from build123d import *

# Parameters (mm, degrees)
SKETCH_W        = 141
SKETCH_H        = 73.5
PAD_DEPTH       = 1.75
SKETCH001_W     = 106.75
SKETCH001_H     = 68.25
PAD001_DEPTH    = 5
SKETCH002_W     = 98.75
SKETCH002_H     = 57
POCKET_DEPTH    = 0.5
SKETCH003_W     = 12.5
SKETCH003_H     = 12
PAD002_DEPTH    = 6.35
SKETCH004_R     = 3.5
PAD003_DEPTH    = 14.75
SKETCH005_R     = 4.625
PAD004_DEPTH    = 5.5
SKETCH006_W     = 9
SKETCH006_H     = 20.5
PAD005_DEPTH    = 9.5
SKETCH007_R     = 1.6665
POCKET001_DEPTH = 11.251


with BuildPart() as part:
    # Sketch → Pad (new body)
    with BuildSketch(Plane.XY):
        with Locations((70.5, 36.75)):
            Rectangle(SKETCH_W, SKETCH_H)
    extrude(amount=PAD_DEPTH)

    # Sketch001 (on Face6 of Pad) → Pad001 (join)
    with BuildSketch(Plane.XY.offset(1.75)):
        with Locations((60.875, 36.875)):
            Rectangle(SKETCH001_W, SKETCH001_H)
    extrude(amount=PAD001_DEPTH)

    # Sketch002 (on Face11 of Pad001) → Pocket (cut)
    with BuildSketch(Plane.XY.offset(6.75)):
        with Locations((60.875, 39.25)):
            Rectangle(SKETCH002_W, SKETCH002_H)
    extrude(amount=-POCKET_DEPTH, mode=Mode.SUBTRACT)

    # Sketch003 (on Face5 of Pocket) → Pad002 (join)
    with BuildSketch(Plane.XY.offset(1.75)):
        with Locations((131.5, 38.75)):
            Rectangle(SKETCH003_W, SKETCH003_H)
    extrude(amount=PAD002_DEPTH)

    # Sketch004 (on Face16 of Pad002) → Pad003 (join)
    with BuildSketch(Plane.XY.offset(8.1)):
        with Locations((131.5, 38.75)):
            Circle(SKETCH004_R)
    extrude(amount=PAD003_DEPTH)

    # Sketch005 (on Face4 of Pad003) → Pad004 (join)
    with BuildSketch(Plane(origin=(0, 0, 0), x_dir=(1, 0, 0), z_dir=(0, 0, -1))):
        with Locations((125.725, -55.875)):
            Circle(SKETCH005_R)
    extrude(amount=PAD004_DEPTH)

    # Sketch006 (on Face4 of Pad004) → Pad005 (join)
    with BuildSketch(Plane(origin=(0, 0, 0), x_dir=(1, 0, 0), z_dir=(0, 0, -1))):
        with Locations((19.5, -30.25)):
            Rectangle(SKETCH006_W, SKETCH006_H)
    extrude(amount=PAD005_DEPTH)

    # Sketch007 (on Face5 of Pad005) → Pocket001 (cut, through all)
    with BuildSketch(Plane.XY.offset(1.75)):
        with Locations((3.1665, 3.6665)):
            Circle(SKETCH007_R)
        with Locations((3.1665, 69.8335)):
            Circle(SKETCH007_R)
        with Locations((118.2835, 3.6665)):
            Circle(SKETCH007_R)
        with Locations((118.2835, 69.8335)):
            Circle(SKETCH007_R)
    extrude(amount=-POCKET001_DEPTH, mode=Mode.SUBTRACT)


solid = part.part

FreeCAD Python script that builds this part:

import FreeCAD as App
import Part
import Sketcher
from FreeCAD import Vector
Q = App.Units.Quantity

doc = App.newDocument("Part")
params = doc.addObject("Spreadsheet::Sheet", "Params")
for row, (alias, value) in enumerate([
    ("sketch1_width", "141 mm"),
    ("sketch1_height", "73.5 mm"),
    ("pad1_length", "1.75 mm"),
    ("sketch2_width", "106.75 mm"),
    ("sketch2_height", "68.25 mm"),
    ("pad2_length", "5 mm"),
    ("sketch3_height", "57 mm"),
    ("sketch3_width", "98.75 mm"),
    ("pocket1_length", "0.5 mm"),
    ("sketch4_height", "12 mm"),
    ("sketch4_width", "12.5 mm"),
    ("pad3_length", "6.35 mm"),
    ("sketch5_diameter", "7 mm"),
    ("pad4_length", "14.75 mm"),
    ("sketch6_diameter", "9.25 mm"),
    ("pad5_length", "5.5 mm"),
    ("sketch7_width", "9 mm"),
    ("sketch7_height", "20.5 mm"),
    ("pad6_length", "9.5 mm"),
], start=1):
    params.set(f"A{row}", alias)
    params.set(f"B{row}", "=" + value)
    params.setAlias(f"B{row}", alias)

body = doc.addObject("PartDesign::Body", "Body")

# Sketch on XY plane
sketch1 = doc.addObject("Sketcher::SketchObject", "Sketch")
body.addObject(sketch1)
sketch1.AttachmentSupport = (doc.XY_Plane, [""])
sketch1.MapMode = "FlatFace"
sketch1.addGeometry(Part.LineSegment(Vector(0, 74, 0), Vector(0, 0, 0)), False)
sketch1.addGeometry(Part.LineSegment(Vector(0, 0, 0), Vector(141, 0, 0)), False)
sketch1.addGeometry(Part.LineSegment(Vector(141, 0, 0), Vector(141, 74, 0)), False)
sketch1.addGeometry(Part.LineSegment(Vector(141, 74, 0), Vector(0, 74, 0)), False)
sketch1.addConstraint(Sketcher.Constraint("Coincident", 0, 2, 1, 1))
sketch1.addConstraint(Sketcher.Constraint("Coincident", 1, 2, 2, 1))
sketch1.addConstraint(Sketcher.Constraint("Coincident", 2, 2, 3, 1))
sketch1.addConstraint(Sketcher.Constraint("Coincident", 3, 2, 0, 1))
sketch1.addConstraint(Sketcher.Constraint("Vertical", 0))
sketch1.addConstraint(Sketcher.Constraint("Horizontal", 1))
sketch1.addConstraint(Sketcher.Constraint("Vertical", 2))
sketch1.addConstraint(Sketcher.Constraint("Horizontal", 3))
sketch1.addConstraint(Sketcher.Constraint("Coincident", 0, 2, -1, 1))
sketch1.addConstraint(Sketcher.Constraint("DistanceX", 1, 1, 1, 2, Q("141 mm")))
sketch1.addConstraint(Sketcher.Constraint("DistanceY", 0, 2, 0, 1, Q("73.5 mm")))
sketch1.setExpression("Constraints[9]", "Params.sketch1_width")
sketch1.setExpression("Constraints[10]", "Params.sketch1_height")
pad1 = doc.addObject("PartDesign::Pad", "Pad")
body.addObject(pad1)
pad1.Profile = sketch1
pad1.setExpression("Length", "Params.pad1_length")

# Sketch on XY plane
sketch2 = doc.addObject("Sketcher::SketchObject", "Sketch001")
body.addObject(sketch2)
sketch2.AttachmentSupport = (doc.XY_Plane, [""])
sketch2.MapMode = "FlatFace"
sketch2.AttachmentOffset = App.Placement(Vector(0, 0, 1.75), App.Rotation())
sketch2.addGeometry(Part.LineSegment(Vector(8, 71, 0), Vector(8, 3, 0)), False)
sketch2.addGeometry(Part.LineSegment(Vector(8, 3, 0), Vector(114, 3, 0)), False)
sketch2.addGeometry(Part.LineSegment(Vector(114, 3, 0), Vector(114, 71, 0)), False)
sketch2.addGeometry(Part.LineSegment(Vector(114, 71, 0), Vector(8, 71, 0)), False)
sketch2.addConstraint(Sketcher.Constraint("Coincident", 0, 2, 1, 1))
sketch2.addConstraint(Sketcher.Constraint("Coincident", 1, 2, 2, 1))
sketch2.addConstraint(Sketcher.Constraint("Coincident", 2, 2, 3, 1))
sketch2.addConstraint(Sketcher.Constraint("Coincident", 3, 2, 0, 1))
sketch2.addConstraint(Sketcher.Constraint("Vertical", 0))
sketch2.addConstraint(Sketcher.Constraint("Horizontal", 1))
sketch2.addConstraint(Sketcher.Constraint("Vertical", 2))
sketch2.addConstraint(Sketcher.Constraint("Horizontal", 3))
sketch2.addConstraint(Sketcher.Constraint("DistanceY", -1, 1, 2, 2, Q("71 mm")))
sketch2.addConstraint(Sketcher.Constraint("DistanceX", 1, 1, 1, 2, Q("106.75 mm")))
sketch2.addConstraint(Sketcher.Constraint("DistanceY", 0, 2, 0, 1, Q("68.25 mm")))
sketch2.addConstraint(Sketcher.Constraint("DistanceX", -1, 1, 0, 2, Q("7.5 mm")))
sketch2.setExpression("Constraints[9]", "Params.sketch2_width")
sketch2.setExpression("Constraints[10]", "Params.sketch2_height")
pad2 = doc.addObject("PartDesign::Pad", "Pad001")
body.addObject(pad2)
pad2.Profile = sketch2
pad2.setExpression("Length", "Params.pad2_length")

# Sketch on XY plane
sketch3 = doc.addObject("Sketcher::SketchObject", "Sketch002")
body.addObject(sketch3)
sketch3.AttachmentSupport = (doc.XY_Plane, [""])
sketch3.MapMode = "FlatFace"
sketch3.AttachmentOffset = App.Placement(Vector(0, 0, 6.75), App.Rotation())
sketch3.addGeometry(Part.LineSegment(Vector(12, 68, 0), Vector(12, 11, 0)), False)
sketch3.addGeometry(Part.LineSegment(Vector(12, 11, 0), Vector(110, 11, 0)), False)
sketch3.addGeometry(Part.LineSegment(Vector(110, 11, 0), Vector(110, 68, 0)), False)
sketch3.addGeometry(Part.LineSegment(Vector(110, 68, 0), Vector(12, 68, 0)), False)
sketch3.addConstraint(Sketcher.Constraint("Coincident", 0, 2, 1, 1))
sketch3.addConstraint(Sketcher.Constraint("Coincident", 1, 2, 2, 1))
sketch3.addConstraint(Sketcher.Constraint("Coincident", 2, 2, 3, 1))
sketch3.addConstraint(Sketcher.Constraint("Coincident", 3, 2, 0, 1))
sketch3.addConstraint(Sketcher.Constraint("Vertical", 0))
sketch3.addConstraint(Sketcher.Constraint("Horizontal", 1))
sketch3.addConstraint(Sketcher.Constraint("Vertical", 2))
sketch3.addConstraint(Sketcher.Constraint("Horizontal", 3))
sketch3.addConstraint(Sketcher.Constraint("DistanceY", 0, 2, 0, 1, Q("57 mm")))
sketch3.addConstraint(Sketcher.Constraint("DistanceX", 1, 1, 1, 2, Q("98.75 mm")))
sketch3.addConstraint(Sketcher.Constraint("DistanceX", -1, 1, 0, 2, Q("11.5 mm")))
sketch3.addConstraint(Sketcher.Constraint("DistanceY", -1, 1, 0, 2, Q("10.75 mm")))
sketch3.setExpression("Constraints[8]", "Params.sketch3_height")
sketch3.setExpression("Constraints[9]", "Params.sketch3_width")
pocket1 = doc.addObject("PartDesign::Pocket", "Pocket")
body.addObject(pocket1)
pocket1.Profile = sketch3
pocket1.setExpression("Length", "Params.pocket1_length")

# Sketch on XY plane
sketch4 = doc.addObject("Sketcher::SketchObject", "Sketch003")
body.addObject(sketch4)
sketch4.AttachmentSupport = (doc.XY_Plane, [""])
sketch4.MapMode = "FlatFace"
sketch4.AttachmentOffset = App.Placement(Vector(0, 0, 1.75), App.Rotation())
sketch4.addGeometry(Part.LineSegment(Vector(125, 45, 0), Vector(125, 33, 0)), False)
sketch4.addGeometry(Part.LineSegment(Vector(125, 33, 0), Vector(138, 33, 0)), False)
sketch4.addGeometry(Part.LineSegment(Vector(138, 33, 0), Vector(138, 45, 0)), False)
sketch4.addGeometry(Part.LineSegment(Vector(138, 45, 0), Vector(125, 45, 0)), False)
sketch4.addConstraint(Sketcher.Constraint("Coincident", 0, 2, 1, 1))
sketch4.addConstraint(Sketcher.Constraint("Coincident", 1, 2, 2, 1))
sketch4.addConstraint(Sketcher.Constraint("Coincident", 2, 2, 3, 1))
sketch4.addConstraint(Sketcher.Constraint("Coincident", 3, 2, 0, 1))
sketch4.addConstraint(Sketcher.Constraint("Vertical", 0))
sketch4.addConstraint(Sketcher.Constraint("Horizontal", 1))
sketch4.addConstraint(Sketcher.Constraint("Vertical", 2))
sketch4.addConstraint(Sketcher.Constraint("Horizontal", 3))
sketch4.addConstraint(Sketcher.Constraint("DistanceY", 0, 2, 0, 1, Q("12 mm")))
sketch4.addConstraint(Sketcher.Constraint("DistanceX", 1, 1, 1, 2, Q("12.5 mm")))
sketch4.addConstraint(Sketcher.Constraint("DistanceX", -1, 1, 0, 2, Q("125.25 mm")))
sketch4.addConstraint(Sketcher.Constraint("DistanceY", -1, 1, 0, 2, Q("32.75 mm")))
sketch4.setExpression("Constraints[8]", "Params.sketch4_height")
sketch4.setExpression("Constraints[9]", "Params.sketch4_width")
pad3 = doc.addObject("PartDesign::Pad", "Pad002")
body.addObject(pad3)
pad3.Profile = sketch4
pad3.setExpression("Length", "Params.pad3_length")

# Sketch on XY plane
sketch5 = doc.addObject("Sketcher::SketchObject", "Sketch004")
body.addObject(sketch5)
sketch5.AttachmentSupport = (doc.XY_Plane, [""])
sketch5.MapMode = "FlatFace"
sketch5.AttachmentOffset = App.Placement(Vector(0, 0, 8.1), App.Rotation())
sketch5.addGeometry(Part.Circle(Vector(131.5, 38.8, 0), Vector(0, 0, 1), 3.5), False)
sketch5.addConstraint(Sketcher.Constraint("Diameter", 0, Q("7 mm")))
sketch5.addConstraint(Sketcher.Constraint("DistanceX", -1, 1, 0, 3, Q("131.5 mm")))
sketch5.addConstraint(Sketcher.Constraint("DistanceY", -1, 1, 0, 3, Q("38.75 mm")))
sketch5.setExpression("Constraints[0]", "Params.sketch5_diameter")
pad4 = doc.addObject("PartDesign::Pad", "Pad003")
body.addObject(pad4)
pad4.Profile = sketch5
pad4.setExpression("Length", "Params.pad4_length")

# Sketch on XY plane
sketch6 = doc.addObject("Sketcher::SketchObject", "Sketch005")
body.addObject(sketch6)
sketch6.AttachmentSupport = (doc.XY_Plane, [""])
sketch6.MapMode = "FlatFace"
sketch6.addGeometry(Part.Circle(Vector(125.7, 55.9, 0), Vector(0, 0, 1), 4.6), False)
sketch6.addConstraint(Sketcher.Constraint("Diameter", 0, Q("9.25 mm")))
sketch6.addConstraint(Sketcher.Constraint("DistanceX", -1, 1, 0, 3, Q("125.725 mm")))
sketch6.addConstraint(Sketcher.Constraint("DistanceY", -1, 1, 0, 3, Q("55.875 mm")))
sketch6.setExpression("Constraints[0]", "Params.sketch6_diameter")
pad5 = doc.addObject("PartDesign::Pad", "Pad004")
body.addObject(pad5)
pad5.Profile = sketch6
pad5.setExpression("Length", "Params.pad5_length")
pad5.Reversed = True

# Sketch on XY plane
sketch7 = doc.addObject("Sketcher::SketchObject", "Sketch006")
body.addObject(sketch7)
sketch7.AttachmentSupport = (doc.XY_Plane, [""])
sketch7.MapMode = "FlatFace"
sketch7.addGeometry(Part.LineSegment(Vector(15, 20, 0), Vector(15, 40, 0)), False)
sketch7.addGeometry(Part.LineSegment(Vector(15, 40, 0), Vector(24, 40, 0)), False)
sketch7.addGeometry(Part.LineSegment(Vector(24, 40, 0), Vector(24, 20, 0)), False)
sketch7.addGeometry(Part.LineSegment(Vector(24, 20, 0), Vector(15, 20, 0)), False)
sketch7.addConstraint(Sketcher.Constraint("Coincident", 0, 2, 1, 1))
sketch7.addConstraint(Sketcher.Constraint("Coincident", 1, 2, 2, 1))
sketch7.addConstraint(Sketcher.Constraint("Coincident", 2, 2, 3, 1))
sketch7.addConstraint(Sketcher.Constraint("Coincident", 3, 2, 0, 1))
sketch7.addConstraint(Sketcher.Constraint("Vertical", 0))
sketch7.addConstraint(Sketcher.Constraint("Horizontal", 1))
sketch7.addConstraint(Sketcher.Constraint("Vertical", 2))
sketch7.addConstraint(Sketcher.Constraint("Horizontal", 3))
sketch7.addConstraint(Sketcher.Constraint("DistanceX", 1, 1, 1, 2, Q("9 mm")))
sketch7.addConstraint(Sketcher.Constraint("DistanceY", 0, 1, 0, 2, Q("20.5 mm")))
sketch7.addConstraint(Sketcher.Constraint("DistanceX", -1, 1, 0, 2, Q("15 mm")))
sketch7.addConstraint(Sketcher.Constraint("DistanceY", -1, 1, 2, 2, Q("20 mm")))
sketch7.setExpression("Constraints[8]", "Params.sketch7_width")
sketch7.setExpression("Constraints[9]", "Params.sketch7_height")
pad6 = doc.addObject("PartDesign::Pad", "Pad005")
body.addObject(pad6)
pad6.Profile = sketch7
pad6.setExpression("Length", "Params.pad6_length")
pad6.Reversed = True

# Sketch on XY plane
sketch8 = doc.addObject("Sketcher::SketchObject", "Sketch007")
body.addObject(sketch8)
sketch8.AttachmentSupport = (doc.XY_Plane, [""])
sketch8.MapMode = "FlatFace"
sketch8.AttachmentOffset = App.Placement(Vector(0, 0, 1.75), App.Rotation())
sketch8.addGeometry(Part.Circle(Vector(3.2, 3.7, 0), Vector(0, 0, 1), 1.7), False)
sketch8.addGeometry(Part.Circle(Vector(3.2, 69.8, 0), Vector(0, 0, 1), 1.7), False)
sketch8.addGeometry(Part.Circle(Vector(118.3, 3.7, 0), Vector(0, 0, 1), 1.7), False)
sketch8.addGeometry(Part.Circle(Vector(118.3, 69.8, 0), Vector(0, 0, 1), 1.7), False)
sketch8.addConstraint(Sketcher.Constraint("Equal", 0, 1))
sketch8.addConstraint(Sketcher.Constraint("Equal", 1, 2))
sketch8.addConstraint(Sketcher.Constraint("Equal", 2, 3))
sketch8.addConstraint(Sketcher.Constraint("Horizontal", 0, 3, 2, 3))
sketch8.addConstraint(Sketcher.Constraint("Horizontal", 1, 3, 3, 3))
sketch8.addConstraint(Sketcher.Constraint("Vertical", 0, 3, 1, 3))
sketch8.addConstraint(Sketcher.Constraint("Vertical", 2, 3, 3, 3))
sketch8.addConstraint(Sketcher.Constraint("Diameter", 0, Q("3.333 mm")))
sketch8.addConstraint(Sketcher.Constraint("DistanceY", 0, 3, 1, 3, Q("66.167 mm")))
sketch8.addConstraint(Sketcher.Constraint("DistanceX", 0, 3, 2, 3, Q("115.117 mm")))
sketch8.addConstraint(Sketcher.Constraint("DistanceX", -1, 1, 0, 3, Q("3.1665 mm")))
sketch8.addConstraint(Sketcher.Constraint("DistanceY", -1, 1, 0, 3, Q("3.6665 mm")))
pocket2 = doc.addObject("PartDesign::Pocket", "Pocket001")
body.addObject(pocket2)
pocket2.Profile = sketch8
pocket2.Type = "ThroughAll"

doc.recompute()
